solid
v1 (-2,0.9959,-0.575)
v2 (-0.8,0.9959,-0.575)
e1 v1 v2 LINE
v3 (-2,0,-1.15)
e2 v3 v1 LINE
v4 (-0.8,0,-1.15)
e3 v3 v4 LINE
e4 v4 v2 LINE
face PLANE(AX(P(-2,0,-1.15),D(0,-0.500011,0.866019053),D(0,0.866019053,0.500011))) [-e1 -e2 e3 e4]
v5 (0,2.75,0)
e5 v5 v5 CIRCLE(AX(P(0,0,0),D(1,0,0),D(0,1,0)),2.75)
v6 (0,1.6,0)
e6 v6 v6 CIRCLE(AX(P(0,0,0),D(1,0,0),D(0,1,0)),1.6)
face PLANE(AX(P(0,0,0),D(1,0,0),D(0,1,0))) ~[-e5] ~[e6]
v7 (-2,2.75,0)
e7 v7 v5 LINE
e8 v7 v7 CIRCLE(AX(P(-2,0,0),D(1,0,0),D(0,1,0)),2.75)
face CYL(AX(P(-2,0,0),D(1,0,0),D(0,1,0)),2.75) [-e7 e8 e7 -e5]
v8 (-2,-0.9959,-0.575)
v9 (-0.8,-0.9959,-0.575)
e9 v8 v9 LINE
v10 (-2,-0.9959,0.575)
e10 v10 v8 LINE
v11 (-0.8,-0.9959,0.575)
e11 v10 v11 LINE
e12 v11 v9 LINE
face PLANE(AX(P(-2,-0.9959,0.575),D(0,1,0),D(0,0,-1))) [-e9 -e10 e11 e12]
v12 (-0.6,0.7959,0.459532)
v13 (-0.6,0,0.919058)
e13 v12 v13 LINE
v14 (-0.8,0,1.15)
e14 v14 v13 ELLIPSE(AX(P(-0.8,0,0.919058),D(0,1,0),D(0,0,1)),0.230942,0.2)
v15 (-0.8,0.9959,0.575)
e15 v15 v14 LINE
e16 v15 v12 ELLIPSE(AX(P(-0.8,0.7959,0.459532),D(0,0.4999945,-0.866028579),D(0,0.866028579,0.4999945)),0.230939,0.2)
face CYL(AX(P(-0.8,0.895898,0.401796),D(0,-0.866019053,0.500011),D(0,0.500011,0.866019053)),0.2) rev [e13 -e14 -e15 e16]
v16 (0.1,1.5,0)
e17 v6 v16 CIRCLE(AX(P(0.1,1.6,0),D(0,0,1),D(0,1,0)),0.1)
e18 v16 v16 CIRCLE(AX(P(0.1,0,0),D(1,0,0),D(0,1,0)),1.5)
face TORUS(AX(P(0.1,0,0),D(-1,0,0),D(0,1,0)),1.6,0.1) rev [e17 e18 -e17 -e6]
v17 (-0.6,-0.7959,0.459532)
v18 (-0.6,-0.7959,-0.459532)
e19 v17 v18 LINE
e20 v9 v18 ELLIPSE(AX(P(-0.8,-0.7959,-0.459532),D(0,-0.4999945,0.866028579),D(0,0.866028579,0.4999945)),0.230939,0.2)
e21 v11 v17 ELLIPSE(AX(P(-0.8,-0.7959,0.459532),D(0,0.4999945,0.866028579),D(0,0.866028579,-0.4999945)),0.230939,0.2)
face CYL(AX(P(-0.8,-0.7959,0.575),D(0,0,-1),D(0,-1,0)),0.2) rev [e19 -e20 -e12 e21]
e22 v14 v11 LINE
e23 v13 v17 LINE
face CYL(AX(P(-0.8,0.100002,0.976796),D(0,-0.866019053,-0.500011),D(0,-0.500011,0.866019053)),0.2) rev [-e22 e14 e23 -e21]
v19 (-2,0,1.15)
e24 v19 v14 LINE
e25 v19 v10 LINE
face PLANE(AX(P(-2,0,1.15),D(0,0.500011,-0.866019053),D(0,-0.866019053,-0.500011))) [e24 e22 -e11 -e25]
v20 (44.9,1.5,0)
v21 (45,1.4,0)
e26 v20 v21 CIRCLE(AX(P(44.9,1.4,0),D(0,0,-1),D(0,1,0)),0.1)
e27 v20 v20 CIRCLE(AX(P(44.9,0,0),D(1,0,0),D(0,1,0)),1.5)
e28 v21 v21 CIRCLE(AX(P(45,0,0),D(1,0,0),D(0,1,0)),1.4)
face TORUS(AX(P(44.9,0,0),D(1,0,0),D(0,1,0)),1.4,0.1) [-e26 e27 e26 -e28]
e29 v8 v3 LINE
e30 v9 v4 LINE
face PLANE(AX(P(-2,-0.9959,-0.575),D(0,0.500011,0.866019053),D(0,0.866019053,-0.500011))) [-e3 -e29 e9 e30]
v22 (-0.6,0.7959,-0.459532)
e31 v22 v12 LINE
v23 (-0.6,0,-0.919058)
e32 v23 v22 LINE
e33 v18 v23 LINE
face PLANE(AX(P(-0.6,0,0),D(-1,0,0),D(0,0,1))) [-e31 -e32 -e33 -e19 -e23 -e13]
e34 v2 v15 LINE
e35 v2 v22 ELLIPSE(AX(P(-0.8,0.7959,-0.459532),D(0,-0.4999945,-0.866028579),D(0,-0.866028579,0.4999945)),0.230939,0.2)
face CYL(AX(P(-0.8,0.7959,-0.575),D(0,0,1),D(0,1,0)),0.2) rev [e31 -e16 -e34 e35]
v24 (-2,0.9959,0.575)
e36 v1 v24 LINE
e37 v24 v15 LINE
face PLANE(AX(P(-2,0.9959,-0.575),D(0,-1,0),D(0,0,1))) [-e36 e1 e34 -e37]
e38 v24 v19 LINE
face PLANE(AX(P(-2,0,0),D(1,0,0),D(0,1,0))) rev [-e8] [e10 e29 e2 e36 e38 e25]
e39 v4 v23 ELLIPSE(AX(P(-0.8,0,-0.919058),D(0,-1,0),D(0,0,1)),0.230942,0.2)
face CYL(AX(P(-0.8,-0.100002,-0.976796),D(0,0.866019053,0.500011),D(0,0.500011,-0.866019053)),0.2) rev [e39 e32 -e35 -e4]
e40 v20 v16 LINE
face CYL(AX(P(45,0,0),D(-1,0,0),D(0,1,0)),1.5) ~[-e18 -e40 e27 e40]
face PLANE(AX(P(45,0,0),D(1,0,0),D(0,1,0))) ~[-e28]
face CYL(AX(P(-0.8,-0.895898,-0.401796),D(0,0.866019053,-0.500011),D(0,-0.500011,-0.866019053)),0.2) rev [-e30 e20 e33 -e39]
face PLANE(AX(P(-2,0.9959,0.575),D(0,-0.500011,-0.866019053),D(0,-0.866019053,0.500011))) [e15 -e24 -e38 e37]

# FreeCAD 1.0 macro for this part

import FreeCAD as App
import Part
import Sketcher
Q = App.Units.Quantity


def edges_at(feature, points):
    """Names of the edges that pass closest to the given points."""
    edges = feature.Shape.Edges
    near = lambda p: min(range(len(edges)), key=lambda i: edges[i].distToShape(Part.Vertex(*p))[0])
    return sorted({f"Edge{near(p) + 1}" for p in points})

doc = App.newDocument("Part")
body = doc.addObject("PartDesign::Body", "Body")

sketch1 = doc.addObject("Sketcher::SketchObject", "Sketch")
body.addObject(sketch1)
sketch1.AttachmentSupport = (doc.XY_Plane, [""])
sketch1.MapMode = "FlatFace"
sketch1.addGeometry([
    Part.LineSegment(App.Vector(45, 1.5, 0), App.Vector(0, 1.5, 0)),
    Part.LineSegment(App.Vector(0, 1.5, 0), App.Vector(0, 2.8, 0)),
    Part.LineSegment(App.Vector(0, 2.8, 0), App.Vector(-2, 2.8, 0)),
    Part.LineSegment(App.Vector(-2, 2.8, 0), App.Vector(-2, 0, 0)),
    Part.LineSegment(App.Vector(-2, 0, 0), App.Vector(45, 0, 0)),
    Part.LineSegment(App.Vector(45, 0, 0), App.Vector(45, 1.5, 0)),
], False)
sketch1.addConstraint([
    Sketcher.Constraint("Coincident", 0, 2, 1, 1),
    Sketcher.Constraint("Coincident", 1, 2, 2, 1),
    Sketcher.Constraint("Coincident", 2, 2, 3, 1),
    Sketcher.Constraint("Coincident", 3, 2, 4, 1),
    Sketcher.Constraint("Coincident", 4, 2, 5, 1),
    Sketcher.Constraint("Coincident", 5, 2, 0, 1),
    Sketcher.Constraint("Horizontal", 0),
    Sketcher.Constraint("Vertical", 1),
    Sketcher.Constraint("Horizontal", 2),
    Sketcher.Constraint("Vertical", 3),
    Sketcher.Constraint("Horizontal", 4),
    Sketcher.Constraint("Vertical", 5),
    Sketcher.Constraint("PointOnObject", 0, 2, -2),
    Sketcher.Constraint("PointOnObject", 3, 2, -1),
    Sketcher.Constraint("DistanceX", 0, 2, 0, 1, Q("45 mm")),
    Sketcher.Constraint("DistanceX", 2, 2, 2, 1, Q("2 mm")),
    Sketcher.Constraint("DistanceY", 5, 1, 5, 2, Q("1.5 mm")),
    Sketcher.Constraint("DistanceY", 3, 2, 3, 1, Q("2.75 mm")),
])
revolution = doc.addObject("PartDesign::Revolution", "Revolution")
body.addObject(revolution)
revolution.Profile = sketch1
revolution.ReferenceAxis = (sketch1, ["H_Axis"])
revolution.Angle = 360

sketch2 = doc.addObject("Sketcher::SketchObject", "Sketch001")
body.addObject(sketch2)
sketch2.AttachmentSupport = (doc.YZ_Plane, [""])
sketch2.MapMode = "FlatFace"
sketch2.AttachmentOffset = App.Placement(App.Vector(0, 0, -2), App.Rotation())
sketch2.addGeometry([
    Part.LineSegment(App.Vector(1, 0.6, 0), App.Vector(1, -0.6, 0)),
    Part.LineSegment(App.Vector(1, -0.6, 0), App.Vector(0, -1.1, 0)),
    Part.LineSegment(App.Vector(0, -1.1, 0), App.Vector(-1, -0.6, 0)),
    Part.LineSegment(App.Vector(-1, -0.6, 0), App.Vector(-1, 0.6, 0)),
    Part.LineSegment(App.Vector(-1, 0.6, 0), App.Vector(0, 1.1, 0)),
    Part.LineSegment(App.Vector(0, 1.1, 0), App.Vector(1, 0.6, 0)),
], False)
sketch2.addConstraint([
    Sketcher.Constraint("Coincident", 0, 2, 1, 1),
    Sketcher.Constraint("Coincident", 1, 2, 2, 1),
    Sketcher.Constraint("Coincident", 2, 2, 3, 1),
    Sketcher.Constraint("Coincident", 3, 2, 4, 1),
    Sketcher.Constraint("Coincident", 4, 2, 5, 1),
    Sketcher.Constraint("Coincident", 5, 2, 0, 1),
    Sketcher.Constraint("Vertical", 0),
    Sketcher.Constraint("Vertical", 3),
    Sketcher.Constraint("Symmetric", 0, 2, 3, 2, -1, 1),
    Sketcher.Constraint("Symmetric", 1, 2, 4, 2, -1, 1),
    Sketcher.Constraint("PointOnObject", 1, 2, -2),
    Sketcher.Constraint("Parallel", 2, 5),
    Sketcher.Constraint("Horizontal", 0, 2, 2, 2),
    Sketcher.Constraint("DistanceY", 0, 2, 0, 1, Q("1.15 mm")),
    Sketcher.Constraint("Distance", 1, Q("1.15 mm")),
    Sketcher.Constraint("DistanceY", 1, 2, -1, 1, Q("1.15 mm")),
])
pocket1 = doc.addObject("PartDesign::Pocket", "Pocket")
body.addObject(pocket1)
pocket1.Profile = sketch2
pocket1.Length = 1.4
pocket1.Reversed = True
doc.recompute()

fillet = doc.addObject("PartDesign::Fillet", "Fillet")
body.addObject(fillet)
fillet.Base = (pocket1, edges_at(pocket1, [
    (-0.6, 0.996, 0),
    (-0.6, 0.498, 0.863),
    (-0.6, 0.498, -0.863),
    (-0.6, -0.498, -0.863),
    (-0.6, -0.996, 0),
    (-0.6, -0.498, 0.863),
]))
fillet.Radius = 0.2
doc.recompute()

fillet2 = doc.addObject("PartDesign::Fillet", "Fillet001")
body.addObject(fillet2)
fillet2.Base = (fillet, edges_at(fillet, [(0, -1.5, 0)]))
fillet2.Radius = 0.1
doc.recompute()

fillet3 = doc.addObject("PartDesign::Fillet", "Fillet002")
body.addObject(fillet3)
fillet3.Base = (fillet2, edges_at(fillet2, [(45, -1.5, 0)]))
fillet3.Radius = 0.1

doc.recompute()
